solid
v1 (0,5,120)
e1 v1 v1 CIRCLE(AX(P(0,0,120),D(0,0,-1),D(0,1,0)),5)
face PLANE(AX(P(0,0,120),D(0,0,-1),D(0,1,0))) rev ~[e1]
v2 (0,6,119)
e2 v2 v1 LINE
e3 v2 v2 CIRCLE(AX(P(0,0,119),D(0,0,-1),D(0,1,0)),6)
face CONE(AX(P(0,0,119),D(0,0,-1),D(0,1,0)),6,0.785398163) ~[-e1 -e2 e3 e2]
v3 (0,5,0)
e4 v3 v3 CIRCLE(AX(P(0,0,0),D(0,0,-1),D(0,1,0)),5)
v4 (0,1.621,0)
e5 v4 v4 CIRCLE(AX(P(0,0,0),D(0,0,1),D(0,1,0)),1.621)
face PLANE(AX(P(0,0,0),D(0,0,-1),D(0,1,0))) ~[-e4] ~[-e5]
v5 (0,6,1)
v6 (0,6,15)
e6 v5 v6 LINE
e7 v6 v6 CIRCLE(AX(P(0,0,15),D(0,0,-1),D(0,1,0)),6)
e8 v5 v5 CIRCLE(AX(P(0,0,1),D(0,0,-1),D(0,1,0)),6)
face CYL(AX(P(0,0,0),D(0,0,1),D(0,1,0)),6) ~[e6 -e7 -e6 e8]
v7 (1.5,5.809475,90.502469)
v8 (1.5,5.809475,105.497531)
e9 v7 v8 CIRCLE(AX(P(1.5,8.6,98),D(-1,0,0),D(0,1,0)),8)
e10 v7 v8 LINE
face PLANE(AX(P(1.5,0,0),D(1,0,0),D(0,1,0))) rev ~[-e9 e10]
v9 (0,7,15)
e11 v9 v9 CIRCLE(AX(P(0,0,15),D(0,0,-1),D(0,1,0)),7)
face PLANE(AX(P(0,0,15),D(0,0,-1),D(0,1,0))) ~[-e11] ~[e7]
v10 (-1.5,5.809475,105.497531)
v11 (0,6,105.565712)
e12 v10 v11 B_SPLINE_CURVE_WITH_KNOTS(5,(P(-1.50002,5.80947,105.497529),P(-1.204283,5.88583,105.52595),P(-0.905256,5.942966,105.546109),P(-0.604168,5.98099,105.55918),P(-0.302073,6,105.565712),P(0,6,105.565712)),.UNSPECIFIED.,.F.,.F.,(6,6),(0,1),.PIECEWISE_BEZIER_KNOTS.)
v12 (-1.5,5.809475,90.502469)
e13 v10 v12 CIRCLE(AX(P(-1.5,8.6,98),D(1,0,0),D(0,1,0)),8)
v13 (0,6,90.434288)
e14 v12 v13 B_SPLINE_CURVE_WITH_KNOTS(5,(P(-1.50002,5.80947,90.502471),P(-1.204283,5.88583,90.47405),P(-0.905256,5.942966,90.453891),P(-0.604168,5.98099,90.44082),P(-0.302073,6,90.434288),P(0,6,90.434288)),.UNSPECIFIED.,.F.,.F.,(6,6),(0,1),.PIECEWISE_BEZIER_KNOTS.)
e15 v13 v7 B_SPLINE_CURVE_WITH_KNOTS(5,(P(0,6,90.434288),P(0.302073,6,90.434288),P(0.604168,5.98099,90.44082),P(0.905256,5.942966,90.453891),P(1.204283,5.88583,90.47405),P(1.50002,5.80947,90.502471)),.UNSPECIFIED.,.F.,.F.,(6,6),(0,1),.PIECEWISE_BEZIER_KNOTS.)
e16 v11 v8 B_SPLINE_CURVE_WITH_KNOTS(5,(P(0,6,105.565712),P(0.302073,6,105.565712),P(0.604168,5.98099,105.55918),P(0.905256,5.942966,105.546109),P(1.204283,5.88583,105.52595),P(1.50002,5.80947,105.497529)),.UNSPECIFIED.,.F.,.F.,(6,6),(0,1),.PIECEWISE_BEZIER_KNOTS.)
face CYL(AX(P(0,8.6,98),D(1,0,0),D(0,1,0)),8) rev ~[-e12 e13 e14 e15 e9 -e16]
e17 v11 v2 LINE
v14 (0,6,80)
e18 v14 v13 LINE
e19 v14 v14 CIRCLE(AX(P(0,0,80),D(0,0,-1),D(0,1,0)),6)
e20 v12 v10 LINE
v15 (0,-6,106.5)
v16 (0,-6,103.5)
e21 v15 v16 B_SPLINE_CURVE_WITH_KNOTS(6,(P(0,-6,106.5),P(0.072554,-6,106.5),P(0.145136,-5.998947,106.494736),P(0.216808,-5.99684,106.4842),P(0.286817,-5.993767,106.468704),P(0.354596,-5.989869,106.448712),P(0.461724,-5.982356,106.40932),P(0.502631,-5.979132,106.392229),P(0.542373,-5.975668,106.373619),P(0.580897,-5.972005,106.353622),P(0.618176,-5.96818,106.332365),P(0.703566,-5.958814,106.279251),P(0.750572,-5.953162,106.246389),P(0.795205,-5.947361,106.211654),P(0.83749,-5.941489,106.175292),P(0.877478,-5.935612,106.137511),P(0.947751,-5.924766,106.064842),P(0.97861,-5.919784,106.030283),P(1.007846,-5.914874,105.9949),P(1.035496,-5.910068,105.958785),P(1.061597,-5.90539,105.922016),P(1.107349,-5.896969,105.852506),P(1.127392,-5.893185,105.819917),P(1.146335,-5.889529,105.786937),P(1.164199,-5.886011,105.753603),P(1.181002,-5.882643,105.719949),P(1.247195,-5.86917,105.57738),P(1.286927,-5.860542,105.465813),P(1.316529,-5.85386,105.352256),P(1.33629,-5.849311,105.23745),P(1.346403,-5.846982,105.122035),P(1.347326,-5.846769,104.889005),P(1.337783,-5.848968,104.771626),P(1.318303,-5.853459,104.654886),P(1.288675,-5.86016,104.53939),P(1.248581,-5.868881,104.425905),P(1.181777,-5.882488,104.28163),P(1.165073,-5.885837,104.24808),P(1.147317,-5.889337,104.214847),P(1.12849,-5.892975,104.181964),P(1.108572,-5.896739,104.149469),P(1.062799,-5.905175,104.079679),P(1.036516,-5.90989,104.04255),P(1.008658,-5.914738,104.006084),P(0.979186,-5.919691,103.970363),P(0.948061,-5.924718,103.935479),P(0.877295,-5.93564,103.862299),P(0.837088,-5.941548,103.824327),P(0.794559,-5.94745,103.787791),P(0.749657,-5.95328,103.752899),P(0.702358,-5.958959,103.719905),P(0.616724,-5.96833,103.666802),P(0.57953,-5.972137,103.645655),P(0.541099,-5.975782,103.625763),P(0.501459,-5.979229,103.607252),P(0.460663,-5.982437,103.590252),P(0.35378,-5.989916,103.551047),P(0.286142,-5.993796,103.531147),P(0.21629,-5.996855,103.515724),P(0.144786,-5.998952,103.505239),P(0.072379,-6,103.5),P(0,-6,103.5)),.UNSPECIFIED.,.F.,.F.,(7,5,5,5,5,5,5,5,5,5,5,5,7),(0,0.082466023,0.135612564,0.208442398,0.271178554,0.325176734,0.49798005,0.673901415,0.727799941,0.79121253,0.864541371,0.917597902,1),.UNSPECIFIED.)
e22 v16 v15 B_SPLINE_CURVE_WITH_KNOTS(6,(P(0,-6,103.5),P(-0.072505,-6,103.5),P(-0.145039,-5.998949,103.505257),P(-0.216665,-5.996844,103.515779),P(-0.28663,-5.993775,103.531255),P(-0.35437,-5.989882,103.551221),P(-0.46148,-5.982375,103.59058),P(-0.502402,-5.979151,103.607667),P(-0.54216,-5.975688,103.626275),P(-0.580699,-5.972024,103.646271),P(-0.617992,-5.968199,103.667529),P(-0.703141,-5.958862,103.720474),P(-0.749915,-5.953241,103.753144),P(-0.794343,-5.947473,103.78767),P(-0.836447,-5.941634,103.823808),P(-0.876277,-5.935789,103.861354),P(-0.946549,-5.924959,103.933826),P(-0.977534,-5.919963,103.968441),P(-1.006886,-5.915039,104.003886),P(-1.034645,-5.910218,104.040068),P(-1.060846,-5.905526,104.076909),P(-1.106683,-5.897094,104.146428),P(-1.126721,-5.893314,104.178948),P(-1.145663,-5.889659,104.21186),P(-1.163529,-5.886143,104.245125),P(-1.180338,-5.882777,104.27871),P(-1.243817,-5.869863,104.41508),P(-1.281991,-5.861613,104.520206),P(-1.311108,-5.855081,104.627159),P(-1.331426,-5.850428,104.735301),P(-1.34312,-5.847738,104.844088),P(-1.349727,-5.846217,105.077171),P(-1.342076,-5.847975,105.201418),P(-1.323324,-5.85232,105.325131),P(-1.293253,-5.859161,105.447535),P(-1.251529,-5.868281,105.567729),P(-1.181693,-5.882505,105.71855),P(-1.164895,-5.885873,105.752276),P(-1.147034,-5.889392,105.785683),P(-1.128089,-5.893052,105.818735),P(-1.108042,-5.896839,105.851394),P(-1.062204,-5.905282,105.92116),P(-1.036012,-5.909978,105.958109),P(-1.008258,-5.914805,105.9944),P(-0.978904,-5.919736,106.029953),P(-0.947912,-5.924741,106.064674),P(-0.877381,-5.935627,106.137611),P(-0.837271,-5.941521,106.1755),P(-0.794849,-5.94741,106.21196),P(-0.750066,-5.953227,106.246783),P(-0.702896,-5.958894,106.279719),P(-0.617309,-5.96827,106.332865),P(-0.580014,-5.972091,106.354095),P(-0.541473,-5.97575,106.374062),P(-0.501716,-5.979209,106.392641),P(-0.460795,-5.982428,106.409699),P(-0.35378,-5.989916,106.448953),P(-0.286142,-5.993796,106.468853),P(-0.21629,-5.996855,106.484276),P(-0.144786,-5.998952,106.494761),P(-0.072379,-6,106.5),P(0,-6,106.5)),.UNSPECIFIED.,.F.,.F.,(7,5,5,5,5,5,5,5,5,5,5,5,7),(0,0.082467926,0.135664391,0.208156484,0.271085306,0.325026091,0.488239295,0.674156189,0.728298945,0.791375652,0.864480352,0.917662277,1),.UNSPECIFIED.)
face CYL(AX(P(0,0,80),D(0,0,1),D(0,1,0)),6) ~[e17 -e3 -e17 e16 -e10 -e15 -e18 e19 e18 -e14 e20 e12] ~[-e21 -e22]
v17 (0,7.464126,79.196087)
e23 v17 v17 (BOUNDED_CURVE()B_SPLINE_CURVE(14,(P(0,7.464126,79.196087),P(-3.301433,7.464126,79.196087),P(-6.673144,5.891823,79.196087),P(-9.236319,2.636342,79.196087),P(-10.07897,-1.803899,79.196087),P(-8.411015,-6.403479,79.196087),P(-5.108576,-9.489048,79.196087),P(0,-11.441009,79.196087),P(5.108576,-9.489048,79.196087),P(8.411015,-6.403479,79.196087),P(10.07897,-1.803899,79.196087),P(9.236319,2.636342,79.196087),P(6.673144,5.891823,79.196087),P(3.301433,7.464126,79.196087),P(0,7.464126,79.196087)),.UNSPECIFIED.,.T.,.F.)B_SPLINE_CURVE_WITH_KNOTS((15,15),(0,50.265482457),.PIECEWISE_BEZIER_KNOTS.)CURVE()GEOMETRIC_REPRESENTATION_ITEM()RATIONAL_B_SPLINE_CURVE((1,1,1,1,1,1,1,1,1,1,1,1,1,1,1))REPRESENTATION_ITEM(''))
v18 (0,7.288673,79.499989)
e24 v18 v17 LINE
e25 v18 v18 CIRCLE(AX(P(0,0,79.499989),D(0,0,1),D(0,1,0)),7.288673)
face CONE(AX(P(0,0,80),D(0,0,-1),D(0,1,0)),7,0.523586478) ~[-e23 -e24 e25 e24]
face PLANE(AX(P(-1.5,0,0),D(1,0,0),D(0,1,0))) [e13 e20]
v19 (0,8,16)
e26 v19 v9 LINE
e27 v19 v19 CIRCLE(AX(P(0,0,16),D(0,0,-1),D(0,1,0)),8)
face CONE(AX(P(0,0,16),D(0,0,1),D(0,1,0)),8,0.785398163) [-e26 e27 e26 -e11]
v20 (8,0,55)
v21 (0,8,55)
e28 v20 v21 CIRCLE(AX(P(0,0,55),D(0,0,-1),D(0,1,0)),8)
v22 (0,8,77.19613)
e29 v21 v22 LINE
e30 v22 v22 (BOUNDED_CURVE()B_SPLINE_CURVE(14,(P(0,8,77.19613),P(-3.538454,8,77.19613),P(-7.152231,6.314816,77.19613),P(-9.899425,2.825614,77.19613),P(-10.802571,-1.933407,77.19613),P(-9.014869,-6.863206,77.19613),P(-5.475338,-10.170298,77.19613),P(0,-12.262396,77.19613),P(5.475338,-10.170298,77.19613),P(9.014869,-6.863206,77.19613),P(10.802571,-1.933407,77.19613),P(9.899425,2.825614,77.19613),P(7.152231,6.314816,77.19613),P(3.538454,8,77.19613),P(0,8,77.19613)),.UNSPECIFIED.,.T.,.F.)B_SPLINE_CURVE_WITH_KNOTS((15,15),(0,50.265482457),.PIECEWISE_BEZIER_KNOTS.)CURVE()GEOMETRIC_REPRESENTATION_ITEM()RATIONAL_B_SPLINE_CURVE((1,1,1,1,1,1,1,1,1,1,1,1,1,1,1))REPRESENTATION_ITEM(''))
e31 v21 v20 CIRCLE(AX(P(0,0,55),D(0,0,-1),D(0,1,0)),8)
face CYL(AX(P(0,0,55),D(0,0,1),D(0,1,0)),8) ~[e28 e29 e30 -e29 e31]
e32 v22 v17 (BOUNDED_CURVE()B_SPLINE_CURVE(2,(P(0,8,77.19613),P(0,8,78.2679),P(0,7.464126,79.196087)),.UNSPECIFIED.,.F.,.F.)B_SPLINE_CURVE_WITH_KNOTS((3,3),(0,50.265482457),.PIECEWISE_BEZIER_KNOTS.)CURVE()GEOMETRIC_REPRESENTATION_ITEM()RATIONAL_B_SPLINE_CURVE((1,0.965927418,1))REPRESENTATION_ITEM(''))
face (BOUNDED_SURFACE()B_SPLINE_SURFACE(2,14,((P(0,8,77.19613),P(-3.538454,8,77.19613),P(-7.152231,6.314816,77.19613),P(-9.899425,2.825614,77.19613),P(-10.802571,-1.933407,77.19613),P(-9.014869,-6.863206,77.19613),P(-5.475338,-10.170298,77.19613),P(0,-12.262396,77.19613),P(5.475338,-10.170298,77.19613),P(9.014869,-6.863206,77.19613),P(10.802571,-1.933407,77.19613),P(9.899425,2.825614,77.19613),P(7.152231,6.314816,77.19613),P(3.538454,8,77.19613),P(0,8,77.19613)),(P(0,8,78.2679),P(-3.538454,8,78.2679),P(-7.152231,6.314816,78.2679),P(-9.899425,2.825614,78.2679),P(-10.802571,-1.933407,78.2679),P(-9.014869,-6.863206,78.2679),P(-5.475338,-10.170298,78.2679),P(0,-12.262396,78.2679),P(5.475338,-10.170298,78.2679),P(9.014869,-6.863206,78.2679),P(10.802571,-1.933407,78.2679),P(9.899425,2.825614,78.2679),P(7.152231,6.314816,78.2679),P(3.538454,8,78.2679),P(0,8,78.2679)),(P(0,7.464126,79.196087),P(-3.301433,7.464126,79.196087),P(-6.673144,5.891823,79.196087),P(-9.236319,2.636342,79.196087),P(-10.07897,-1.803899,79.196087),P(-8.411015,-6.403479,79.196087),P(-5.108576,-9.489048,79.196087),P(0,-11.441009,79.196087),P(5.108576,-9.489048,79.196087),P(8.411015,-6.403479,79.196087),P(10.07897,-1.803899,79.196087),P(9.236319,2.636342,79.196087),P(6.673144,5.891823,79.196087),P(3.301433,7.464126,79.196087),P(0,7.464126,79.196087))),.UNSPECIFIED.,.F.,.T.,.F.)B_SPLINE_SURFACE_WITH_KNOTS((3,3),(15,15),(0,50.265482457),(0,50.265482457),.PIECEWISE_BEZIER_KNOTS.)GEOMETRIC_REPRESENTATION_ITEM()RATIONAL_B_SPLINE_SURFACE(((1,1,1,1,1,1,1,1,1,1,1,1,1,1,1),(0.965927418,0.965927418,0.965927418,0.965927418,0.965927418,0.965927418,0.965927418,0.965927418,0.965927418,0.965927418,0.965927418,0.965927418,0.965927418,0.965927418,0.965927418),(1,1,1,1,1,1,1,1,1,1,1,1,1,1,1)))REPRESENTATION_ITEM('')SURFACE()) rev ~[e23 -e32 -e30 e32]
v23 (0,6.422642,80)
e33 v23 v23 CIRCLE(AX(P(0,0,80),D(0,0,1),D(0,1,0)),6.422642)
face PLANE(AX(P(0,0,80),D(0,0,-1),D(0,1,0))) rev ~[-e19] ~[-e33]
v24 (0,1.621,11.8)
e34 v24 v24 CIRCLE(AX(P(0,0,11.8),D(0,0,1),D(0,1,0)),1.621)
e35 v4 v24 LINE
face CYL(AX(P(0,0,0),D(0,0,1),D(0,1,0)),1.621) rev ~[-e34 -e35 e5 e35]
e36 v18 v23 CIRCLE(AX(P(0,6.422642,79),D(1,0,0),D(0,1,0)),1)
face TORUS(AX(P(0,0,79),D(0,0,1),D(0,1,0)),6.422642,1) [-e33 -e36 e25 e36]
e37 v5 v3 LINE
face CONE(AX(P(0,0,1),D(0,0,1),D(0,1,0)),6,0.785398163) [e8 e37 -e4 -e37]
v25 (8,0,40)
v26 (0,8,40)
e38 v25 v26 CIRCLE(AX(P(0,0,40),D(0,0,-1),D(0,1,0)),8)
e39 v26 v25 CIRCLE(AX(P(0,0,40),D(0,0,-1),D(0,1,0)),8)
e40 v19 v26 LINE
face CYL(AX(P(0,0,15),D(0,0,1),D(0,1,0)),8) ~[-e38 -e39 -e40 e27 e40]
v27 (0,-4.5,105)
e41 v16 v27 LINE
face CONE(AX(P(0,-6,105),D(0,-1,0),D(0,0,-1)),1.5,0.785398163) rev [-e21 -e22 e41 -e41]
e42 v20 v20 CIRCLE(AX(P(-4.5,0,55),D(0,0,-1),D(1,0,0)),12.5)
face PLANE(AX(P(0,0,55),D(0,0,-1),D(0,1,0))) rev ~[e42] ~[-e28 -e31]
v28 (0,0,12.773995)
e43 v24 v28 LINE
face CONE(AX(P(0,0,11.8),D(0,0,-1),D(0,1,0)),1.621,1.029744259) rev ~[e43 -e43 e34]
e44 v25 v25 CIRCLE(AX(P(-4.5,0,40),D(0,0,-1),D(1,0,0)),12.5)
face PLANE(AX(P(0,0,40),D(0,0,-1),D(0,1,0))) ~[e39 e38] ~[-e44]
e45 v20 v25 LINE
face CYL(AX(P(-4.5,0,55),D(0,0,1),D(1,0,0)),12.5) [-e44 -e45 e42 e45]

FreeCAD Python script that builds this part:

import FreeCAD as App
import Part
import Sketcher
from FreeCAD import Vector
Q = App.Units.Quantity


def edges_at(feature, points):
    """Names of the edges that pass closest to the given points."""
    edges = feature.Shape.Edges
    near = lambda p: min(range(len(edges)), key=lambda i: edges[i].distToShape(Part.Vertex(*p))[0])
    return sorted({f"Edge{near(p) + 1}" for p in points})


def add_polygon(sketch, points):
    """Adds a closed chain of lines whose ends are joined by coincident constraints."""
    first, n = sketch.GeometryCount, len(points)
    for a, b in zip(points, points[1:] + points[:1]):
        sketch.addGeometry(Part.LineSegment(App.Vector(*a, 0), App.Vector(*b, 0)), False)
    for i in range(n):
        sketch.addConstraint(Sketcher.Constraint("Coincident", first + i, 2, first + (i + 1) % n, 1))

doc = App.newDocument("Part")
params = doc.addObject("Spreadsheet::Sheet", "Params")
for row, (alias, value) in enumerate([
    ("sketch1_height", "15 mm"),
    ("sketch1_height2", "25 mm"),
    ("sketch1_height3", "40 mm"),
    ("sketch1_width", "6 mm"),
    ("sketch1_width2", "2 mm"),
    ("revolution_angle", "360 deg"),
    ("sketch2_diameter", "25 mm"),
    ("sketch2_diameter2", "34 mm"),
    ("hole_diameter", "3.242 mm"),
    ("hole_depth", "11.8 mm"),
    ("sketch4_width", "1 mm"),
    ("groove_angle", "360 deg"),
    ("fillet_radius", "4 mm"),
    ("fillet2_radius", "1 mm"),
    ("sketch5_diameter", "16 mm"),
    ("pocket2_length", "3 mm"),
    ("sketch6_width", "1.5 mm"),
    ("groove2_angle", "360 deg"),
    ("chamfer_size", "1 mm"),
], start=1):
    params.set(f"A{row}", alias)
    params.set(f"B{row}", "=" + value)
    params.setAlias(f"B{row}", alias)

body = doc.addObject("PartDesign::Body", "Body")

# Sketch on YZ plane
sketch1 = body.newObject("Sketcher::SketchObject", "Sketch")
sketch1.AttachmentSupport = (doc.getObject("YZ_Plane"), [""])
sketch1.MapMode = "FlatFace"
add_polygon(sketch1, [(0, 0), (6, 0), (6, 15), (8, 15), (8, 40), (17, 40), (17, 55), (8, 55), (8, 80), (6, 80), (6, 120), (0, 120)])  # lines 0-11
sketch1.addConstraint([
    Sketcher.Constraint("Horizontal", 0),
    Sketcher.Constraint("Vertical", 1),
    Sketcher.Constraint("Horizontal", 2),
    Sketcher.Constraint("Vertical", 3),
    Sketcher.Constraint("Horizontal", 4),
    Sketcher.Constraint("Vertical", 5),
    Sketcher.Constraint("Horizontal", 6),
    Sketcher.Constraint("Vertical", 7),
    Sketcher.Constraint("Horizontal", 8),
    Sketcher.Constraint("Vertical", 9),
    Sketcher.Constraint("Horizontal", 10),
    Sketcher.Constraint("Vertical", 11),
    Sketcher.Constraint("Coincident", 11, 2, -1, 1),
    Sketcher.Constraint("Vertical", 3, 2, 6, 2),
    Sketcher.Constraint("Vertical", 1, 2, 8, 2),
    Sketcher.Constraint("Equal", 1, 5),
    Sketcher.Constraint("Equal", 3, 7),
    Sketcher.Constraint("DistanceY", 1, 1, 1, 2, 15.0),
    Sketcher.Constraint("DistanceY", 3, 1, 3, 2, 25.0),
    Sketcher.Constraint("DistanceY", 9, 1, 9, 2, 40.0),
    Sketcher.Constraint("DistanceX", 0, 1, 0, 2, 6.0),
    Sketcher.Constraint("DistanceX", 2, 1, 2, 2, 2.0),
    Sketcher.Constraint("DistanceX", 4, 1, 4, 2, 9.0),
])
sketch1.setExpression("Constraints[29]", "Params.sketch1_height")
sketch1.setExpression("Constraints[30]", "Params.sketch1_height2")
sketch1.setExpression("Constraints[31]", "Params.sketch1_height3")
sketch1.setExpression("Constraints[32]", "Params.sketch1_width")
sketch1.setExpression("Constraints[33]", "Params.sketch1_width2")
revolution = body.newObject("PartDesign::Revolution", "Revolution")
revolution.Profile = sketch1
revolution.ReferenceAxis = (sketch1, ["V_Axis"])
revolution.setExpression("Angle", "Params.revolution_angle")

# Sketch on XY plane
sketch2 = body.newObject("Sketcher::SketchObject", "Sketch001")
sketch2.AttachmentSupport = (doc.getObject("XY_Plane"), [""])
sketch2.MapMode = "FlatFace"
sketch2.AttachmentOffset = App.Placement(Vector(0, 0, 55), App.Rotation())
sketch2.addGeometry([
    Part.Circle(Vector(0, 0, 0), Vector(0, 0, 1), 17),
    Part.Circle(Vector(-4, 0, 0), Vector(0, 0, 1), 12),
], False)
sketch2.addConstraint([
    Sketcher.Constraint("Coincident", 0, 3, -1, 1),
    Sketcher.Constraint("PointOnObject", 1, 3, -1),
    Sketcher.Constraint("Diameter", 1, 25.0),
    Sketcher.Constraint("Diameter", 0, 34.0),
    Sketcher.Constraint("DistanceX", 1, 3, -1, 1, 4.5),
])
sketch2.setExpression("Constraints[2]", "Params.sketch2_diameter")
sketch2.setExpression("Constraints[3]", "Params.sketch2_diameter2")
pocket1 = body.newObject("PartDesign::Pocket", "Pocket")
pocket1.Profile = sketch2
pocket1.Type = "UpToFirst"

# Sketch on XY plane
sketch3 = body.newObject("Sketcher::SketchObject", "Sketch002")
sketch3.AttachmentSupport = (doc.getObject("XY_Plane"), [""])
sketch3.MapMode = "FlatFace"
sketch3.addGeometry(Part.Circle(Vector(0, 0, 0), Vector(0, 0, 1), 1.6), False)
sketch3.addConstraint([
    Sketcher.Constraint("Coincident", 0, 3, -1, 1),
    Sketcher.Constraint("Diameter", 0, 3.242),
])
doc.recompute()
hole = body.newObject("PartDesign::Hole", "Hole")
hole.Profile = sketch3
hole.ThreadType = "None"
hole.setExpression("Diameter", "Params.hole_diameter")
hole.DepthType = "Dimension"
hole.setExpression("Depth", "Params.hole_depth")
hole.DrillPoint = "Angled"
hole.DrillPointAngle = 118
hole.Reversed = True

# Sketch on YZ plane
sketch4 = body.newObject("Sketcher::SketchObject", "Sketch003")
sketch4.AttachmentSupport = (doc.getObject("YZ_Plane"), [""])
sketch4.MapMode = "FlatFace"
add_polygon(sketch4, [(7, 80), (8, 78.3), (8, 80)])  # lines 0-2
sketch4.addConstraint([
    Sketcher.Constraint("Vertical", 1),
    Sketcher.Constraint("Horizontal", 2),
    Sketcher.Constraint("DistanceX", 2, 2, 2, 1, 1.0),
    Sketcher.Constraint("Angle", 0, Q("-60.0007 deg")),
    Sketcher.Constraint("DistanceX", -1, 1, 0, 2, 8.0),
    Sketcher.Constraint("DistanceY", -1, 1, 1, 2, 80.0),
])
sketch4.setExpression("Constraints[5]", "Params.sketch4_width")
groove = body.newObject("PartDesign::Groove", "Groove")
groove.Profile = sketch4
groove.ReferenceAxis = (sketch4, ["V_Axis"])
groove.setExpression("Angle", "Params.groove_angle")
doc.recompute()

fillet = body.newObject("PartDesign::Fillet", "Fillet")
fillet.Base = (groove, edges_at(groove, [(0, -8, 78.268)]))
fillet.setExpression("Radius", "Params.fillet_radius")
doc.recompute()

fillet2 = body.newObject("PartDesign::Fillet", "Fillet001")
fillet2.Base = (fillet, edges_at(fillet, [(0, -7, 80)]))
fillet2.setExpression("Radius", "Params.fillet2_radius")

# Sketch on YZ plane
sketch5 = body.newObject("Sketcher::SketchObject", "Sketch004")
sketch5.AttachmentSupport = (doc.getObject("YZ_Plane"), [""])
sketch5.MapMode = "FlatFace"
sketch5.addGeometry(Part.Circle(Vector(9, 98, 0), Vector(0, 0, 1), 8), False)
sketch5.addConstraint([
    Sketcher.Constraint("Diameter", 0, 16.0),
    Sketcher.Constraint("DistanceY", -1, 1, 0, 3, 98.0),
    Sketcher.Constraint("DistanceX", -1, 1, 0, 3, 8.6),
])
sketch5.setExpression("Constraints[0]", "Params.sketch5_diameter")
pocket2 = body.newObject("PartDesign::Pocket", "Pocket001")
pocket2.Profile = sketch5
pocket2.setExpression("Length", "Params.pocket2_length")
pocket2.Midplane = True

# Sketch on YZ plane
sketch6 = body.newObject("Sketcher::SketchObject", "Sketch005")
sketch6.AttachmentSupport = (doc.getObject("YZ_Plane"), [""])
sketch6.MapMode = "FlatFace"
add_polygon(sketch6, [(-6, 103.5), (-4.5, 105), (-6, 105)])  # lines 0-2
sketch6.addGeometry(Part.LineSegment(Vector(-4.5, 105, 0), Vector(-6, 105, 0)), True)  # axis
sketch6.addConstraint([
    Sketcher.Constraint("Horizontal", 1),
    Sketcher.Constraint("Vertical", 2),
    Sketcher.Constraint("Horizontal", 3),
    Sketcher.Constraint("Coincident", 3, 1, 0, 2),
    Sketcher.Constraint("Vertical", 2, 2, 3, 2),
    Sketcher.Constraint("Equal", 3, 2),
    Sketcher.Constraint("DistanceX", 1, 2, 1, 1, 1.5),
    Sketcher.Constraint("DistanceY", -1, 1, 0, 2, 105.0),
    Sketcher.Constraint("DistanceX", 1, 2, -1, 1, 6.0),
])
sketch6.setExpression("Constraints[9]", "Params.sketch6_width")
groove2 = body.newObject("PartDesign::Groove", "Groove001")
groove2.Profile = sketch6
groove2.ReferenceAxis = (sketch6, ["Axis0"])
groove2.setExpression("Angle", "Params.groove2_angle")
doc.recompute()

chamfer = body.newObject("PartDesign::Chamfer", "Chamfer")
chamfer.Base = (groove2, edges_at(groove2, [(0, -6, 120), (0, -8, 15), (0, -6, 0)]))
chamfer.setExpression("Size", "Params.chamfer_size")

doc.recompute()
